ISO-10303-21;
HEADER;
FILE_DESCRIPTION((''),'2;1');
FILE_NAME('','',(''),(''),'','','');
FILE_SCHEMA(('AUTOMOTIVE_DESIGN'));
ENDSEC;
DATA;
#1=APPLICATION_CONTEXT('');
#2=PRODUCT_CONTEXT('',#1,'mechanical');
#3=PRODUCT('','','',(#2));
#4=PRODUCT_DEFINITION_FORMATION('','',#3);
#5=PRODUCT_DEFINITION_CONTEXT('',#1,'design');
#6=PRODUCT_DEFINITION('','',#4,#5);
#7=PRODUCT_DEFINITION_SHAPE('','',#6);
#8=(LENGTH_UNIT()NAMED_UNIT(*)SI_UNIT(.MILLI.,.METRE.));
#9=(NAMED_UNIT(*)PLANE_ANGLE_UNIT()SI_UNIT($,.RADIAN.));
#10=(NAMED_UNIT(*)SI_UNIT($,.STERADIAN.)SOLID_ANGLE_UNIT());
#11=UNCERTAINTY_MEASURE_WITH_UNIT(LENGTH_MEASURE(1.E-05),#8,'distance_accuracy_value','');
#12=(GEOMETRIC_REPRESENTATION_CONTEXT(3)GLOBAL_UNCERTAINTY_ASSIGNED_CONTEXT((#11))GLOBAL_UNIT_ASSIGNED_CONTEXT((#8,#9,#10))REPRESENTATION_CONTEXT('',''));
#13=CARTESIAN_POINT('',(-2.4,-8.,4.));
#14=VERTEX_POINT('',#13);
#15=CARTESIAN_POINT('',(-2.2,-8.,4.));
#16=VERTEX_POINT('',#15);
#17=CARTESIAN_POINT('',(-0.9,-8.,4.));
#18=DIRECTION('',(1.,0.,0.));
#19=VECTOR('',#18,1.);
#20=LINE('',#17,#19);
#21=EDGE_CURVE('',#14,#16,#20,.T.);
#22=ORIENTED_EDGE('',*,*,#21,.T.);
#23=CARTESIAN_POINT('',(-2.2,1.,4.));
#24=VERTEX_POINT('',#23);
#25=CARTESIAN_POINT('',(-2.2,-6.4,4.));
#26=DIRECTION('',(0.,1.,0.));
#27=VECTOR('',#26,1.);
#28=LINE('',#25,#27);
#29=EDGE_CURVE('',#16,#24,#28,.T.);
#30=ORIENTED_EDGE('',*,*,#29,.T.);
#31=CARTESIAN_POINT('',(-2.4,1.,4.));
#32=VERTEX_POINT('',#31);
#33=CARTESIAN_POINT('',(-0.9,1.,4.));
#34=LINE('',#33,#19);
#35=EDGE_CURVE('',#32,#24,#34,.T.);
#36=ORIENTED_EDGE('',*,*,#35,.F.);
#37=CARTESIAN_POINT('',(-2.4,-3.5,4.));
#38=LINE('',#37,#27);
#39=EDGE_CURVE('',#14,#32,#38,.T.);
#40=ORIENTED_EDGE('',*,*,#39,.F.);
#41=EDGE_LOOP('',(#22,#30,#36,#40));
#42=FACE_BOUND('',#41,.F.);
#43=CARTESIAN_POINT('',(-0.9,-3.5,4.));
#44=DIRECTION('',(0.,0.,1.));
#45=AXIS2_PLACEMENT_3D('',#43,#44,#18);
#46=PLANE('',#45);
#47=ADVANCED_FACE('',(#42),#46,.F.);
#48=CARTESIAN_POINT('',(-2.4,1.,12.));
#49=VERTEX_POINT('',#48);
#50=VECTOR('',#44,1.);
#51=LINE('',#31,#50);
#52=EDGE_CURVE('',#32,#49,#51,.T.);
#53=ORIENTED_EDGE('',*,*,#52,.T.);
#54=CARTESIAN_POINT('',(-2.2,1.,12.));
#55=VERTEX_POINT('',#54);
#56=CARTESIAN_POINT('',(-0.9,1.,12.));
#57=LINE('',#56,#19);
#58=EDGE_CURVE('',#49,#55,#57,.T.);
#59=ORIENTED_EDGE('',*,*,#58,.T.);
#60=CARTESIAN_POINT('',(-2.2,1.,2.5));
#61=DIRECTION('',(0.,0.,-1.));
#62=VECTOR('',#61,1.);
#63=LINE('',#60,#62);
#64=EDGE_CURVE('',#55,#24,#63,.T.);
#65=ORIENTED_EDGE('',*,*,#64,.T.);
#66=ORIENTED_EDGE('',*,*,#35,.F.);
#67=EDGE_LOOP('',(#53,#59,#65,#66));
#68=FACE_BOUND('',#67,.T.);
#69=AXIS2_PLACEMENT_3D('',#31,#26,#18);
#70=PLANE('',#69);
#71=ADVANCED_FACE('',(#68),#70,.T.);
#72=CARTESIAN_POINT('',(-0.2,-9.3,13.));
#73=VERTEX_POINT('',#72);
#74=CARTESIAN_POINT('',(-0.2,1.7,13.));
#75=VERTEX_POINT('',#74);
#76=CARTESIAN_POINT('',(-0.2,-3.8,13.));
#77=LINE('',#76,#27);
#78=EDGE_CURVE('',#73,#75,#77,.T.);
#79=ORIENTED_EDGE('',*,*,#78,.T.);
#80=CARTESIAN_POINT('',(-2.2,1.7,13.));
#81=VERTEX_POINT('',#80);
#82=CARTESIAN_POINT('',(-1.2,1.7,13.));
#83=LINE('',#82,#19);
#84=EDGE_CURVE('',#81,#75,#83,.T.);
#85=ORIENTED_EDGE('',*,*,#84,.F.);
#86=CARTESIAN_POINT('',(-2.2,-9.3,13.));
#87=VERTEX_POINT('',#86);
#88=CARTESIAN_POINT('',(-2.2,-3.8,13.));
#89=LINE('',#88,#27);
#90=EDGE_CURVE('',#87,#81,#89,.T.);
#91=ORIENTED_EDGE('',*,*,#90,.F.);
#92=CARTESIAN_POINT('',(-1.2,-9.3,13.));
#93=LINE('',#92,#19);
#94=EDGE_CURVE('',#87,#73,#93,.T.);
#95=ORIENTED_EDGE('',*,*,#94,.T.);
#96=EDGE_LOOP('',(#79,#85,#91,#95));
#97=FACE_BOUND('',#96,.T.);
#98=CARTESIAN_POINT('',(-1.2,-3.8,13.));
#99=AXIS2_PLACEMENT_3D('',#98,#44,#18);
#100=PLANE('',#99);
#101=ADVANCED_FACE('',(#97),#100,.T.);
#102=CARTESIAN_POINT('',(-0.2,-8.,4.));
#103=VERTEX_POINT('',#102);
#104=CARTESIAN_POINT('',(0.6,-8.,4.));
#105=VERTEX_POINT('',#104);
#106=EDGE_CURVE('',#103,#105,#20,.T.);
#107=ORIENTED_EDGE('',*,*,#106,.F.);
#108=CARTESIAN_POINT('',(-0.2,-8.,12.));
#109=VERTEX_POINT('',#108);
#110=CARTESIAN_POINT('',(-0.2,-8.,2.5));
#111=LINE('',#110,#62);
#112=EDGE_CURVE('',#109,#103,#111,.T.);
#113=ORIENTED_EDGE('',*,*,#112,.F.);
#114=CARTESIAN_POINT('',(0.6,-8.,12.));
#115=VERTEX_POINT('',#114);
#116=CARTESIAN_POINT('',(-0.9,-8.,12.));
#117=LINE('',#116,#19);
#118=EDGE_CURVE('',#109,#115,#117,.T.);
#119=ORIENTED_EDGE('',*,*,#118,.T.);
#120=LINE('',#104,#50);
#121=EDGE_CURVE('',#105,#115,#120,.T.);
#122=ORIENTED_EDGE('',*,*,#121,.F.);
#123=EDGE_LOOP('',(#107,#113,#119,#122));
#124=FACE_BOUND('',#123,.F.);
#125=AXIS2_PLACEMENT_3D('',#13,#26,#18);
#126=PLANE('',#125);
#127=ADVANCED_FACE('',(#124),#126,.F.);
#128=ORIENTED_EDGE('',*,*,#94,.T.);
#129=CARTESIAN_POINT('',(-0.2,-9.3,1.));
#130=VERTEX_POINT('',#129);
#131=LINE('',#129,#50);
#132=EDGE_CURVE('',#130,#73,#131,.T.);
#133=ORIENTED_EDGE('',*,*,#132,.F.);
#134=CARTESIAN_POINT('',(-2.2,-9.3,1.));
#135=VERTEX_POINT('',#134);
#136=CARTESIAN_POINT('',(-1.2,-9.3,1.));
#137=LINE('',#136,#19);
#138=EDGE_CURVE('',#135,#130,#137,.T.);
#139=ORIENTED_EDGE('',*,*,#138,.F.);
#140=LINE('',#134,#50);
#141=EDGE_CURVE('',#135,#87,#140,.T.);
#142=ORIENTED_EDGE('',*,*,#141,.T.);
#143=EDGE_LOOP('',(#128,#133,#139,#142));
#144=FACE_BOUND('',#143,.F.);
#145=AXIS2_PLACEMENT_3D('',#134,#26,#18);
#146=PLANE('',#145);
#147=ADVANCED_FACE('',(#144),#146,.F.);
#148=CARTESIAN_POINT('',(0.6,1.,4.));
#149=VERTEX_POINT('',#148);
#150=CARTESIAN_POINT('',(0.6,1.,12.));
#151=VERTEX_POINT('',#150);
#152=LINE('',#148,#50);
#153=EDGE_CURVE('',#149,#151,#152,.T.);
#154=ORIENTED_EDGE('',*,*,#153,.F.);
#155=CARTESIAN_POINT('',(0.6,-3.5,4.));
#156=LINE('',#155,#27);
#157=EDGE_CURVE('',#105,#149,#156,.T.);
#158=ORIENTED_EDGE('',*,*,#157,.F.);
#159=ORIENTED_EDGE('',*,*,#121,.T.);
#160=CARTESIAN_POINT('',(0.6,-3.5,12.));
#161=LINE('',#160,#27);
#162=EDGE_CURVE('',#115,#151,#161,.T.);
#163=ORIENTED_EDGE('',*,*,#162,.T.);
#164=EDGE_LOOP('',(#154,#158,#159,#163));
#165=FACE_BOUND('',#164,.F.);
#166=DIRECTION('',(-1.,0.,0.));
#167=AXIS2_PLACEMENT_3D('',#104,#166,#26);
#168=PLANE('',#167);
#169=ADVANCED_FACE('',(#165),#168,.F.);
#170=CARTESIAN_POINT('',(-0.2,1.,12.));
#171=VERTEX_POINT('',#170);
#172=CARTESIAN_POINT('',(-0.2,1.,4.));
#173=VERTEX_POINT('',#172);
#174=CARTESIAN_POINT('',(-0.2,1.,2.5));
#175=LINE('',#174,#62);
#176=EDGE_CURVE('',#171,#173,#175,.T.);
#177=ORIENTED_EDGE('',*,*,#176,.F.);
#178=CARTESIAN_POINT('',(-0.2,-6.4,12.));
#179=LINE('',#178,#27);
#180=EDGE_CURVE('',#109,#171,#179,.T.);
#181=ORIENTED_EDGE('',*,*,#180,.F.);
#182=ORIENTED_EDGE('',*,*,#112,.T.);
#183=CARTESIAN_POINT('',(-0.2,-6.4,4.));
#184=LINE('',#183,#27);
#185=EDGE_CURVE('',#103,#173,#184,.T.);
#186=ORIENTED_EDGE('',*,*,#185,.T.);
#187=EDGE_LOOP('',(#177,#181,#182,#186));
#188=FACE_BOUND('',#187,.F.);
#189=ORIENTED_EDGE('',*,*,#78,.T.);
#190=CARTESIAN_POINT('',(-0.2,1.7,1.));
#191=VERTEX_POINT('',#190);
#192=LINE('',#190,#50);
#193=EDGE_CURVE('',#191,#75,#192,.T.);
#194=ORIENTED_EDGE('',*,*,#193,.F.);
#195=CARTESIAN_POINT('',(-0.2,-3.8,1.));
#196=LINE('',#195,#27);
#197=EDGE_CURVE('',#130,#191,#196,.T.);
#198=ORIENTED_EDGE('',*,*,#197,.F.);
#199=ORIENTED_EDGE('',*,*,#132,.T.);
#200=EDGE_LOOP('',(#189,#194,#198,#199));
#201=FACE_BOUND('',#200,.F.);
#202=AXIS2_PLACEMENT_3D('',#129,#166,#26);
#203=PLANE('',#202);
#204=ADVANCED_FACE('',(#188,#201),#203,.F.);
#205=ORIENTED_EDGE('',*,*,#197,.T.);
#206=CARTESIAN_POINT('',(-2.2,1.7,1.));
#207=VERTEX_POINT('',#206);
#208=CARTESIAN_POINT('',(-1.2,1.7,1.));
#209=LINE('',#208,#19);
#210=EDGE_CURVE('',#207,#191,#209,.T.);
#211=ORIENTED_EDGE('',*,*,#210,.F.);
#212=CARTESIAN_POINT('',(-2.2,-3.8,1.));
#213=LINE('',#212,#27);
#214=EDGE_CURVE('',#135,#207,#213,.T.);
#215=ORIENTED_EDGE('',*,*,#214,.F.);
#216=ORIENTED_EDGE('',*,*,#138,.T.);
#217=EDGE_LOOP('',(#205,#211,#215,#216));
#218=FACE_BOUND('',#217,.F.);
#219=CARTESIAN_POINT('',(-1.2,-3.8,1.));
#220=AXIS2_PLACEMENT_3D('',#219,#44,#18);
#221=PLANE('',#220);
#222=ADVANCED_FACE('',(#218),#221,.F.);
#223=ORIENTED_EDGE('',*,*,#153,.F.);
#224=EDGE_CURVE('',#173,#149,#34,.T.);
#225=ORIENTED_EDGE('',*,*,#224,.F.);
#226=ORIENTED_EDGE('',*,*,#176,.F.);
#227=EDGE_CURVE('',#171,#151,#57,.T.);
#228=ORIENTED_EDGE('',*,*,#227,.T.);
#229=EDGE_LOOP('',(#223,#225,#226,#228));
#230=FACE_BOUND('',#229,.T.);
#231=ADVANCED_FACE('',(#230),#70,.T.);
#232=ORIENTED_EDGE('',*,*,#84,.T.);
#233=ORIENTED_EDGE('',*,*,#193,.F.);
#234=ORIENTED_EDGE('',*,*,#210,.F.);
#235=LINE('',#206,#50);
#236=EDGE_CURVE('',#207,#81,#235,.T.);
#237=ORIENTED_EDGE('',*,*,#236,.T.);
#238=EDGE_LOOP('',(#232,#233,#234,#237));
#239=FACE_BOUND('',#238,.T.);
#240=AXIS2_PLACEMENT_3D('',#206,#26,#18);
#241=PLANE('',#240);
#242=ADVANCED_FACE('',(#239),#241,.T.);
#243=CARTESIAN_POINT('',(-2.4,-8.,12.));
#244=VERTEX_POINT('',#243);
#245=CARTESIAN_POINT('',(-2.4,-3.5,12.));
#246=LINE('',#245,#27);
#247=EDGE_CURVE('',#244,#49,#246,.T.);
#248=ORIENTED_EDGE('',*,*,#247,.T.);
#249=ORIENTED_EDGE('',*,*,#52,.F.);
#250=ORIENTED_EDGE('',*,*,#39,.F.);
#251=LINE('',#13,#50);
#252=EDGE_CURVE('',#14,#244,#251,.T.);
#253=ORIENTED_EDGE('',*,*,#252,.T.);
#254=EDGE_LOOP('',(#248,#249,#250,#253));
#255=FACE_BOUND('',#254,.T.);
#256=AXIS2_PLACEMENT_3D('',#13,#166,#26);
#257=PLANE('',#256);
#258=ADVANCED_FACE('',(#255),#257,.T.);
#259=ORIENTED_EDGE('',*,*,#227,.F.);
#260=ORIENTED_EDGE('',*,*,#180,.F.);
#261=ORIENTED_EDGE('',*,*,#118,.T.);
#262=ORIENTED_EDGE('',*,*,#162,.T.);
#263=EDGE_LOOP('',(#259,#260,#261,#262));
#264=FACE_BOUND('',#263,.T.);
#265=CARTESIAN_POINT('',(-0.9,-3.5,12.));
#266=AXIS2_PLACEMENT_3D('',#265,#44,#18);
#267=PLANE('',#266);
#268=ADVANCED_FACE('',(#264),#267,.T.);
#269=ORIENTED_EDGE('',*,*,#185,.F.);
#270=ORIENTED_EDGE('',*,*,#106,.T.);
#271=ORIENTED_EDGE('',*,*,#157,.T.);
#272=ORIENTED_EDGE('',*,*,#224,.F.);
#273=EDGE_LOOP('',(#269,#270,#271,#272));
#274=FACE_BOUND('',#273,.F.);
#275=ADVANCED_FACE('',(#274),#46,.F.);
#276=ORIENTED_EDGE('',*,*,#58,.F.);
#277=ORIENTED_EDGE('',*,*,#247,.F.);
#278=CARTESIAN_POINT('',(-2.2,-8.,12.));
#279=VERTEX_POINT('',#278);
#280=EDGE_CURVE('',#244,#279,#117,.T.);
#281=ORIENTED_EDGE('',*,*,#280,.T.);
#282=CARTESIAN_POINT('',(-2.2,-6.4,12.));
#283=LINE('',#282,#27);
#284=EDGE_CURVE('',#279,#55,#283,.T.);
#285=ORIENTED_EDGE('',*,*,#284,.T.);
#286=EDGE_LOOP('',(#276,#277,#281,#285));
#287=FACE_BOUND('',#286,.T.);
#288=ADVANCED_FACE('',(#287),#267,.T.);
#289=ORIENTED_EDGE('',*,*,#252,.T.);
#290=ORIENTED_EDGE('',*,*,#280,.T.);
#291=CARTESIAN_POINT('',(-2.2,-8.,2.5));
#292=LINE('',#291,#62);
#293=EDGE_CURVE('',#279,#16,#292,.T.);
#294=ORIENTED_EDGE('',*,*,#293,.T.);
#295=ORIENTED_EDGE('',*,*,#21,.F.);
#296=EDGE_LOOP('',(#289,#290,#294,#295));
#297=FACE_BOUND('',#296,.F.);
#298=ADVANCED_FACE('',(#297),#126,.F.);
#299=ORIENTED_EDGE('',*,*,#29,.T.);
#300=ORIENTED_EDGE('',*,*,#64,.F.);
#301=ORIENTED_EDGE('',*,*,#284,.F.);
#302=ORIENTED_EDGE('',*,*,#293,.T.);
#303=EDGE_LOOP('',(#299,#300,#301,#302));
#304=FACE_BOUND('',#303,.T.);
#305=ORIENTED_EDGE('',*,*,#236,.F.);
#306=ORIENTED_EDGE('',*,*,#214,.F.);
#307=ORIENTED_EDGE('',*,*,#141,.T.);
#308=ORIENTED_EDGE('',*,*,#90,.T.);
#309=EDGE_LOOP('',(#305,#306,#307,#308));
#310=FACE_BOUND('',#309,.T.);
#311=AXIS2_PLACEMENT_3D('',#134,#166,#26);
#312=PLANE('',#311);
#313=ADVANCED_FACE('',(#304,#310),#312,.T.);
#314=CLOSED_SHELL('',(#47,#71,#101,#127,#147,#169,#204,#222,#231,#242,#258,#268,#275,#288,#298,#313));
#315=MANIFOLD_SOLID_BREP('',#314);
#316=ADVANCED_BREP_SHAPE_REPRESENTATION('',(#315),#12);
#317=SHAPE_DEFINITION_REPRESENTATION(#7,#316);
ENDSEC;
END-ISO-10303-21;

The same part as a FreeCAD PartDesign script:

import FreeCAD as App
import Part
import Sketcher
from FreeCAD import Vector

doc = App.newDocument("Part")
body = doc.addObject("PartDesign::Body", "Body")

sketch1 = body.newObject("Sketcher::SketchObject", "Sketch")
sketch1.AttachmentSupport = (doc.getObject("XY_Plane"), [""])
sketch1.MapMode = "FlatFace"
sketch1.AttachmentOffset = App.Placement(Vector(0, 0, 4), App.Rotation())
sketch1.addGeometry([
    Part.LineSegment(Vector(-2.4, 1, 0), Vector(-2.4, -8, 0)),
    Part.LineSegment(Vector(-2.4, -8, 0), Vector(0.6, -8, 0)),
    Part.LineSegment(Vector(0.6, -8, 0), Vector(0.6, 1, 0)),
    Part.LineSegment(Vector(0.6, 1, 0), Vector(-2.4, 1, 0)),
], False)
sketch1.addConstraint([
    Sketcher.Constraint("Coincident", 0, 2, 1, 1),
    Sketcher.Constraint("Coincident", 1, 2, 2, 1),
    Sketcher.Constraint("Coincident", 2, 2, 3, 1),
    Sketcher.Constraint("Coincident", 3, 2, 0, 1),
    Sketcher.Constraint("Vertical", 0),
    Sketcher.Constraint("Horizontal", 1),
    Sketcher.Constraint("Vertical", 2),
    Sketcher.Constraint("Horizontal", 3),
    Sketcher.Constraint("DistanceX", 1, 1, 1, 2, 3.0),
    Sketcher.Constraint("DistanceY", 0, 2, 0, 1, 9.0),
    Sketcher.Constraint("DistanceY", 0, 2, -1, 1, 8.0),
    Sketcher.Constraint("DistanceX", 0, 2, -1, 1, 2.4),
])
pad1 = body.newObject("PartDesign::Pad", "Pad")
pad1.Profile = sketch1
pad1.Length = 8
body2 = doc.addObject("PartDesign::Body", "Body001")

sketch2 = body2.newObject("Sketcher::SketchObject", "Sketch001")
sketch2.AttachmentSupport = (doc.getObject("XY_Plane001"), [""])
sketch2.MapMode = "FlatFace"
sketch2.AttachmentOffset = App.Placement(Vector(0, 0, 1), App.Rotation())
sketch2.addGeometry([
    Part.LineSegment(Vector(-2.2, 1.7, 0), Vector(-2.2, -9.3, 0)),
    Part.LineSegment(Vector(-2.2, -9.3, 0), Vector(-0.2, -9.3, 0)),
    Part.LineSegment(Vector(-0.2, -9.3, 0), Vector(-0.2, 1.7, 0)),
    Part.LineSegment(Vector(-0.2, 1.7, 0), Vector(-2.2, 1.7, 0)),
], False)
sketch2.addConstraint([
    Sketcher.Constraint("Coincident", 0, 2, 1, 1),
    Sketcher.Constraint("Coincident", 1, 2, 2, 1),
    Sketcher.Constraint("Coincident", 2, 2, 3, 1),
    Sketcher.Constraint("Coincident", 3, 2, 0, 1),
    Sketcher.Constraint("Vertical", 0),
    Sketcher.Constraint("Horizontal", 1),
    Sketcher.Constraint("Vertical", 2),
    Sketcher.Constraint("Horizontal", 3),
    Sketcher.Constraint("DistanceX", 1, 1, 1, 2, 2.0),
    Sketcher.Constraint("DistanceY", 0, 2, 0, 1, 11.0),
    Sketcher.Constraint("DistanceX", 0, 2, -1, 1, 2.2),
    Sketcher.Constraint("DistanceY", 0, 2, -1, 1, 9.3),
])
pad2 = body2.newObject("PartDesign::Pad", "Pad001")
pad2.Profile = sketch2
pad2.Length = 12
doc.recompute()

boolean = body2.newObject("PartDesign::Boolean", "Boolean")
boolean.Type = "Fuse"
boolean.addObjects([body])

doc.recompute()
